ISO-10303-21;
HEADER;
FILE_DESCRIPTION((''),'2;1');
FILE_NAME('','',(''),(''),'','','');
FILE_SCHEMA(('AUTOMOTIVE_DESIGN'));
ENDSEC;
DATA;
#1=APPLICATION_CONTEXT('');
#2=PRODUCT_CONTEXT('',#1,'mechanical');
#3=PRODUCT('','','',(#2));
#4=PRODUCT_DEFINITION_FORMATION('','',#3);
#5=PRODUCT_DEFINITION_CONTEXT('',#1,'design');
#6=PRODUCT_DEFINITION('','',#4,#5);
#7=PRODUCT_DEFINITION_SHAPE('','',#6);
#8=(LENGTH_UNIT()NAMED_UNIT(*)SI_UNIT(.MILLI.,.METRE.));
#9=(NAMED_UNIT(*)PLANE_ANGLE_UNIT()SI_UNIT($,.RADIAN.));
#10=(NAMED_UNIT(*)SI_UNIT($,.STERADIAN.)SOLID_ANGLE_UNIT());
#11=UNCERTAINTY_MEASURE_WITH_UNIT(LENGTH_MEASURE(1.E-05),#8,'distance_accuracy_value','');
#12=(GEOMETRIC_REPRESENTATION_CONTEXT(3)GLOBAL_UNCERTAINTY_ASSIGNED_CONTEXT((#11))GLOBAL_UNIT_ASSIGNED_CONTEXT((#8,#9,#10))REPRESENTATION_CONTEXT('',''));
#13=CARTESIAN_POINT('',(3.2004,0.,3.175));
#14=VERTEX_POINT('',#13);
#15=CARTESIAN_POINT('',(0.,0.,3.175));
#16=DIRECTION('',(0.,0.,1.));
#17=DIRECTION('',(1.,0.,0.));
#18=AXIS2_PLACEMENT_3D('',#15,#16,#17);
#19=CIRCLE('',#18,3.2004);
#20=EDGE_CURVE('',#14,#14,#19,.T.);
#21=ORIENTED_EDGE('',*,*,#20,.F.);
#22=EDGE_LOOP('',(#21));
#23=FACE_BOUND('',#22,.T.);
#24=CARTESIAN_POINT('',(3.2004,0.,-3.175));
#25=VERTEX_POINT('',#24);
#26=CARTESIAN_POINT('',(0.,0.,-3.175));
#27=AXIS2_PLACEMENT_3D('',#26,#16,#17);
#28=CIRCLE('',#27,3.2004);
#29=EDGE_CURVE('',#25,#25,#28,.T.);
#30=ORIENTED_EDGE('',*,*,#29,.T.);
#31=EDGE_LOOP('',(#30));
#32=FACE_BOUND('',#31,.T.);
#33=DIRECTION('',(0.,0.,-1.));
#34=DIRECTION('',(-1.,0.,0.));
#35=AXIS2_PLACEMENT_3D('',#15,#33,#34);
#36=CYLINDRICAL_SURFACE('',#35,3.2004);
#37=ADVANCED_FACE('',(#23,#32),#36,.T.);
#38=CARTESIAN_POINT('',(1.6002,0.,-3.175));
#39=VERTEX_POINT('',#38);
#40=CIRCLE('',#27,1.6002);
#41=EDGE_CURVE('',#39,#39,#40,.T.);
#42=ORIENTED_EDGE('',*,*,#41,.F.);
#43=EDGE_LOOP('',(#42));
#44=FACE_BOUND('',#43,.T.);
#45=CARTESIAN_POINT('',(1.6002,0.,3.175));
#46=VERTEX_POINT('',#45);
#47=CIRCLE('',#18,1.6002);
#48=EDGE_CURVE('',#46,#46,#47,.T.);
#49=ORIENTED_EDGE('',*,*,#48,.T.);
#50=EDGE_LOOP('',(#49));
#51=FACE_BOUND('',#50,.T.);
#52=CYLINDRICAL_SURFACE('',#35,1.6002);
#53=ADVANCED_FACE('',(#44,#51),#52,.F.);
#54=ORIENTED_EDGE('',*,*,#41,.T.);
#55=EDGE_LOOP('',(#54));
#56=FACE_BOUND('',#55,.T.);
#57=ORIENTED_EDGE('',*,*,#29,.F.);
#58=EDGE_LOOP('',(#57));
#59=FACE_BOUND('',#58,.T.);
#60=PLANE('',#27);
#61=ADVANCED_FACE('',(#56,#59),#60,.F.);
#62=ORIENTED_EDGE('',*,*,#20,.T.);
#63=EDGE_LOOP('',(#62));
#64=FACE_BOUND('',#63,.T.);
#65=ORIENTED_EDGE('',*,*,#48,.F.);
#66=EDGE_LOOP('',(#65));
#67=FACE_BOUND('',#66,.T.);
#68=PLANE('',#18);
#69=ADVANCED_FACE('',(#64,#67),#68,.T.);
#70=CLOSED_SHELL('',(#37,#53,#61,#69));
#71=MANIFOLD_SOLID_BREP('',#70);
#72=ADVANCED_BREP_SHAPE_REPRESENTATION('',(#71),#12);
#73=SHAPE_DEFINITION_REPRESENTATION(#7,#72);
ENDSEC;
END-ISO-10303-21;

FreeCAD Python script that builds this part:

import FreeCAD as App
import Part
import Sketcher
Q = App.Units.Quantity

doc = App.newDocument("Part")
body = doc.addObject("PartDesign::Body", "Body")

# Sketch on XY plane
sketch1 = doc.addObject("Sketcher::SketchObject", "Sketch")
body.addObject(sketch1)
sketch1.AttachmentSupport = (doc.XY_Plane, [""])
sketch1.MapMode = "FlatFace"
sketch1.addGeometry(Part.Circle(App.Vector(0, 0, 0), App.Vector(0, 0, 1), 3.2), False)
sketch1.addGeometry(Part.Circle(App.Vector(0, 0, 0), App.Vector(0, 0, 1), 1.6), False)
sketch1.addConstraint(Sketcher.Constraint("Coincident", 0, 3, -1, 1))
sketch1.addConstraint(Sketcher.Constraint("Coincident", 1, 3, -1, 1))
sketch1.addConstraint(Sketcher.Constraint("Diameter", 0, Q("0.252 in")))
sketch1.addConstraint(Sketcher.Constraint("Diameter", 1, Q("0.126 in")))
pad1 = doc.addObject("PartDesign::Pad", "Pad")
body.addObject(pad1)
pad1.Profile = sketch1
pad1.Type = "TwoLengths"
pad1.Length = Q("0.125 in")
pad1.Length2 = Q("0.125 in")

doc.recompute()
